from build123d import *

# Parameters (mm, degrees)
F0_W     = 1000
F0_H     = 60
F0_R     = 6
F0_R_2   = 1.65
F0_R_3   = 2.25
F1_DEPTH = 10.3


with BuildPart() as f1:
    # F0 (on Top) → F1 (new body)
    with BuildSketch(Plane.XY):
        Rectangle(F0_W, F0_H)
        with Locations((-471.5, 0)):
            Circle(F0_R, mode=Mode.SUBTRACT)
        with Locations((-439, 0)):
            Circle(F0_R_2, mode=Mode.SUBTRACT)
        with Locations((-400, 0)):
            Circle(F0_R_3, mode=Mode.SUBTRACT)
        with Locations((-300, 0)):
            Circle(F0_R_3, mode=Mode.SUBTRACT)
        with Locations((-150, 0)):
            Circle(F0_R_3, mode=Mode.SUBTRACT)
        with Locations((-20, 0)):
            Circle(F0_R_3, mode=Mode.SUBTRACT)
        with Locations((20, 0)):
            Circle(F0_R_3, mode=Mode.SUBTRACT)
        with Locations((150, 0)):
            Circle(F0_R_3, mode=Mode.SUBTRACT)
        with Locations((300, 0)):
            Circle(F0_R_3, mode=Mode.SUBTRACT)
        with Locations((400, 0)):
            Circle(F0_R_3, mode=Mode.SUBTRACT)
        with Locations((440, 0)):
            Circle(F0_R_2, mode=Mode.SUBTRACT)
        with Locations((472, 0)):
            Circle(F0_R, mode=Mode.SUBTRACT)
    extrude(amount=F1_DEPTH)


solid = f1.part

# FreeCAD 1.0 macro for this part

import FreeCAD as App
import Part
import Sketcher
from FreeCAD import Vector

doc = App.newDocument("Part")
body = doc.addObject("PartDesign::Body", "Body")

sketch1 = doc.addObject("Sketcher::SketchObject", "Sketch")
body.addObject(sketch1)
sketch1.AttachmentSupport = (doc.XY_Plane, [""])
sketch1.MapMode = "FlatFace"
sketch1.addGeometry(Part.LineSegment(Vector(-500, 30, 0), Vector(-500, -30, 0)), False)
sketch1.addGeometry(Part.LineSegment(Vector(-500, -30, 0), Vector(500, -30, 0)), False)
sketch1.addGeometry(Part.LineSegment(Vector(500, -30, 0), Vector(500, 30, 0)), False)
sketch1.addGeometry(Part.LineSegment(Vector(500, 30, 0), Vector(-500, 30, 0)), False)
sketch1.addGeometry(Part.Circle(Vector(-471.5, 0, 0), Vector(0, 0, 1), 6), False)
sketch1.addGeometry(Part.Circle(Vector(-439, 0, 0), Vector(0, 0, 1), 1.6), False)
sketch1.addGeometry(Part.Circle(Vector(-400, 0, 0), Vector(0, 0, 1), 2.2), False)
sketch1.addGeometry(Part.Circle(Vector(-300, 0, 0), Vector(0, 0, 1), 2.2), False)
sketch1.addGeometry(Part.Circle(Vector(-150, 0, 0), Vector(0, 0, 1), 2.2), False)
sketch1.addGeometry(Part.Circle(Vector(-20, 0, 0), Vector(0, 0, 1), 2.2), False)
sketch1.addGeometry(Part.Circle(Vector(20, 0, 0), Vector(0, 0, 1), 2.2), False)
sketch1.addGeometry(Part.Circle(Vector(150, 0, 0), Vector(0, 0, 1), 2.2), False)
sketch1.addGeometry(Part.Circle(Vector(300, 0, 0), Vector(0, 0, 1), 2.2), False)
sketch1.addGeometry(Part.Circle(Vector(400, 0, 0), Vector(0, 0, 1), 2.2), False)
sketch1.addGeometry(Part.Circle(Vector(440, 0, 0), Vector(0, 0, 1), 1.6), False)
sketch1.addGeometry(Part.Circle(Vector(472, 0, 0), Vector(0, 0, 1), 6), False)
sketch1.addConstraint(Sketcher.Constraint("Coincident", 0, 2, 1, 1))
sketch1.addConstraint(Sketcher.Constraint("Coincident", 1, 2, 2, 1))
sketch1.addConstraint(Sketcher.Constraint("Coincident", 2, 2, 3, 1))
sketch1.addConstraint(Sketcher.Constraint("Coincident", 3, 2, 0, 1))
sketch1.addConstraint(Sketcher.Constraint("Vertical", 0))
sketch1.addConstraint(Sketcher.Constraint("Horizontal", 1))
sketch1.addConstraint(Sketcher.Constraint("Vertical", 2))
sketch1.addConstraint(Sketcher.Constraint("Horizontal", 3))
sketch1.addConstraint(Sketcher.Constraint("Equal", 6, 7))
sketch1.addConstraint(Sketcher.Constraint("Equal", 7, 8))
sketch1.addConstraint(Sketcher.Constraint("Equal", 8, 9))
sketch1.addConstraint(Sketcher.Constraint("Equal", 9, 10))
sketch1.addConstraint(Sketcher.Constraint("Equal", 10, 11))
sketch1.addConstraint(Sketcher.Constraint("Equal", 11, 12))
sketch1.addConstraint(Sketcher.Constraint("Equal", 12, 13))
sketch1.addConstraint(Sketcher.Constraint("Equal", 5, 14))
sketch1.addConstraint(Sketcher.Constraint("Equal", 4, 15))
sketch1.addConstraint(Sketcher.Constraint("Symmetric", 9, 3, 10, 3, -1, 1))
sketch1.addConstraint(Sketcher.Constraint("Symmetric", 8, 3, 11, 3, -1, 1))
sketch1.addConstraint(Sketcher.Constraint("Symmetric", 7, 3, 12, 3, -1, 1))
sketch1.addConstraint(Sketcher.Constraint("Symmetric", 6, 3, 13, 3, -1, 1))
sketch1.addConstraint(Sketcher.Constraint("Symmetric", 0, 2, 2, 2, -1, 1))
sketch1.addConstraint(Sketcher.Constraint("PointOnObject", 4, 3, -1))
sketch1.addConstraint(Sketcher.Constraint("PointOnObject", 5, 3, -1))
sketch1.addConstraint(Sketcher.Constraint("PointOnObject", 6, 3, -1))
sketch1.addConstraint(Sketcher.Constraint("PointOnObject", 7, 3, -1))
sketch1.addConstraint(Sketcher.Constraint("PointOnObject", 8, 3, -1))
sketch1.addConstraint(Sketcher.Constraint("PointOnObject", 9, 3, -1))
sketch1.addConstraint(Sketcher.Constraint("PointOnObject", 14, 3, -1))
sketch1.addConstraint(Sketcher.Constraint("PointOnObject", 15, 3, -1))
sketch1.addConstraint(Sketcher.Constraint("Diameter", 4, 12.0))
sketch1.addConstraint(Sketcher.Constraint("Diameter", 5, 3.3))
sketch1.addConstraint(Sketcher.Constraint("Diameter", 6, 4.5))
sketch1.addConstraint(Sketcher.Constraint("DistanceX", 1, 1, 1, 2, 1000.0))
sketch1.addConstraint(Sketcher.Constraint("DistanceY", 0, 2, 0, 1, 60.0))
sketch1.addConstraint(Sketcher.Constraint("DistanceX", 5, 3, -1, 1, 439.0))
sketch1.addConstraint(Sketcher.Constraint("DistanceX", 6, 3, -1, 1, 400.0))
sketch1.addConstraint(Sketcher.Constraint("DistanceX", 7, 3, -1, 1, 300.0))
sketch1.addConstraint(Sketcher.Constraint("DistanceX", 8, 3, -1, 1, 150.0))
sketch1.addConstraint(Sketcher.Constraint("DistanceX", 9, 3, -1, 1, 20.0))
sketch1.addConstraint(Sketcher.Constraint("DistanceX", -1, 1, 14, 3, 440.0))
sketch1.addConstraint(Sketcher.Constraint("DistanceX", -1, 1, 15, 3, 472.0))
sketch1.addConstraint(Sketcher.Constraint("DistanceX", 4, 3, -1, 1, 471.5))
pad1 = doc.addObject("PartDesign::Pad", "Pad")
body.addObject(pad1)
pad1.Profile = sketch1
pad1.Length = 10.3

doc.recompute()
